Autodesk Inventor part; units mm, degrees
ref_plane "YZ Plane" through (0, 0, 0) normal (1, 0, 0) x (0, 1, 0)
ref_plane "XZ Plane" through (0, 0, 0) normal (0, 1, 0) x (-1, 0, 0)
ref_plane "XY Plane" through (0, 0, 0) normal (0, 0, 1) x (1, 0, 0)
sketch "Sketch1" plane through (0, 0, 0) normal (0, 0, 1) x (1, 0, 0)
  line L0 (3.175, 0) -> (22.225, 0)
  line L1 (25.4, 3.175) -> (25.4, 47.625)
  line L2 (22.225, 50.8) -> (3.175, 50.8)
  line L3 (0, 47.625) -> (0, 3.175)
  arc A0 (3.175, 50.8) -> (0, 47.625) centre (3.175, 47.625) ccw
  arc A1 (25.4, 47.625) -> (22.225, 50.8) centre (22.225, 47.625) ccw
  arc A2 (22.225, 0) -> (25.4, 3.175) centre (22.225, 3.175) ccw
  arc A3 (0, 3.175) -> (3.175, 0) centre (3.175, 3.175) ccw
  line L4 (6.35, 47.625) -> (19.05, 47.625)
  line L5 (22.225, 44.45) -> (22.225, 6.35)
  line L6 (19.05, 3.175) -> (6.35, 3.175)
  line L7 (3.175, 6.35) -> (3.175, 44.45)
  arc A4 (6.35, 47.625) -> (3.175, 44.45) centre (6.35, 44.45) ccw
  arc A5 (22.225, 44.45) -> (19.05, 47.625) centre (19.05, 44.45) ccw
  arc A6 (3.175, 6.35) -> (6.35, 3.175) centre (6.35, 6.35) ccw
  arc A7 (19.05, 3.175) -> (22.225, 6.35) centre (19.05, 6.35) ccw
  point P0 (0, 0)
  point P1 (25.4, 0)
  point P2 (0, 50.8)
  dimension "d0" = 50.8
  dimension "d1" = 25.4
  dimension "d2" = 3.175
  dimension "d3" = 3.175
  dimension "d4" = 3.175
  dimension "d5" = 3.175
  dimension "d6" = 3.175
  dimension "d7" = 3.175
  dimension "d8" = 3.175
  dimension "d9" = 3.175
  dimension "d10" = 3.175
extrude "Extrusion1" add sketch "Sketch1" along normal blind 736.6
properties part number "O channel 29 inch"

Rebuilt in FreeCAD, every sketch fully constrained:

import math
import FreeCAD as App
import Part
import Sketcher

V = App.Vector
Q = App.Units.Quantity

doc = App.newDocument("Part")
body = doc.addObject("PartDesign::Body", "Body")

sketch1 = body.newObject("Sketcher::SketchObject", "Sketch")
sketch1.AttachmentSupport = (doc.getObject("XY_Plane"), [""])
sketch1.MapMode = "FlatFace"
sketch1.addGeometry([
    Part.ArcOfCircle(Part.Circle(V(3.175, 3.175, 0), V(0, 0, 1), 3.175), math.radians(180), math.radians(270)),
    Part.LineSegment(V(3.175, 0, 0), V(22.225, 0, 0)),
    Part.ArcOfCircle(Part.Circle(V(22.225, 3.175, 0), V(0, 0, 1), 3.175), math.radians(-90), math.radians(0)),
    Part.LineSegment(V(25.4, 3.175, 0), V(25.4, 47.625, 0)),
    Part.ArcOfCircle(Part.Circle(V(22.225, 47.625, 0), V(0, 0, 1), 3.175), math.radians(0), math.radians(90)),
    Part.LineSegment(V(22.225, 50.8, 0), V(3.175, 50.8, 0)),
    Part.ArcOfCircle(Part.Circle(V(3.175, 47.625, 0), V(0, 0, 1), 3.175), math.radians(90), math.radians(180)),
    Part.LineSegment(V(0, 47.625, 0), V(0, 3.175, 0)),
    Part.ArcOfCircle(Part.Circle(V(6.35, 44.45, 0), V(0, 0, 1), 3.175), math.radians(90), math.radians(180)),
    Part.LineSegment(V(6.35, 47.625, 0), V(19.05, 47.625, 0)),
    Part.ArcOfCircle(Part.Circle(V(19.05, 44.45, 0), V(0, 0, 1), 3.175), math.radians(0), math.radians(90)),
    Part.LineSegment(V(22.225, 44.45, 0), V(22.225, 6.35, 0)),
    Part.ArcOfCircle(Part.Circle(V(19.05, 6.35, 0), V(0, 0, 1), 3.175), math.radians(-90), math.radians(0)),
    Part.LineSegment(V(19.05, 3.175, 0), V(6.35, 3.175, 0)),
    Part.ArcOfCircle(Part.Circle(V(6.35, 6.35, 0), V(0, 0, 1), 3.175), math.radians(180), math.radians(270)),
    Part.LineSegment(V(3.175, 6.35, 0), V(3.175, 44.45, 0)),
], False)
sketch1.addConstraint([
    Sketcher.Constraint("Tangent", 0, 2, 1, 1),
    Sketcher.Constraint("Tangent", 1, 2, 2, 1),
    Sketcher.Constraint("Tangent", 2, 2, 3, 1),
    Sketcher.Constraint("Tangent", 3, 2, 4, 1),
    Sketcher.Constraint("Tangent", 4, 2, 5, 1),
    Sketcher.Constraint("Tangent", 5, 2, 6, 1),
    Sketcher.Constraint("Tangent", 6, 2, 7, 1),
    Sketcher.Constraint("Tangent", 7, 2, 0, 1),
    Sketcher.Constraint("Tangent", 8, 1, 9, 1),
    Sketcher.Constraint("Tangent", 9, 2, 10, 2),
    Sketcher.Constraint("Tangent", 10, 1, 11, 1),
    Sketcher.Constraint("Tangent", 11, 2, 12, 2),
    Sketcher.Constraint("Tangent", 12, 1, 13, 1),
    Sketcher.Constraint("Tangent", 13, 2, 14, 2),
    Sketcher.Constraint("Tangent", 14, 1, 15, 1),
    Sketcher.Constraint("Tangent", 15, 2, 8, 2),
    Sketcher.Constraint("Horizontal", 1),
    Sketcher.Constraint("Vertical", 3),
    Sketcher.Constraint("Horizontal", 5),
    Sketcher.Constraint("Vertical", 7),
    Sketcher.Constraint("Horizontal", 9),
    Sketcher.Constraint("Vertical", 11),
    Sketcher.Constraint("Horizontal", 13),
    Sketcher.Constraint("Vertical", 15),
    Sketcher.Constraint("Equal", 0, 2),
    Sketcher.Constraint("Equal", 2, 4),
    Sketcher.Constraint("Equal", 4, 6),
    Sketcher.Constraint("Equal", 6, 8),
    Sketcher.Constraint("Equal", 8, 10),
    Sketcher.Constraint("Equal", 10, 12),
    Sketcher.Constraint("Equal", 12, 14),
    Sketcher.Constraint("PointOnObject", 0, 2, -1),
    Sketcher.Constraint("PointOnObject", 6, 2, -2),
    Sketcher.Constraint("Horizontal", 6, 2, 8, 1),
    Sketcher.Constraint("Horizontal", 7, 2, 12, 1),
    Sketcher.Constraint("Vertical", 4, 2, 10, 1),
    Sketcher.Constraint("Vertical", 5, 2, 14, 1),
    Sketcher.Constraint("DistanceX", -1, 1, 2, 2, Q("1 in")),
    Sketcher.Constraint("DistanceY", -1, 1, 4, 2, Q("2 in")),
    Sketcher.Constraint("Radius", 0, Q("0.125 in")),
])
pad1 = body.newObject("PartDesign::Pad", "Pad")
pad1.Profile = sketch1
pad1.Length = Q("29 in")

doc.recompute()
